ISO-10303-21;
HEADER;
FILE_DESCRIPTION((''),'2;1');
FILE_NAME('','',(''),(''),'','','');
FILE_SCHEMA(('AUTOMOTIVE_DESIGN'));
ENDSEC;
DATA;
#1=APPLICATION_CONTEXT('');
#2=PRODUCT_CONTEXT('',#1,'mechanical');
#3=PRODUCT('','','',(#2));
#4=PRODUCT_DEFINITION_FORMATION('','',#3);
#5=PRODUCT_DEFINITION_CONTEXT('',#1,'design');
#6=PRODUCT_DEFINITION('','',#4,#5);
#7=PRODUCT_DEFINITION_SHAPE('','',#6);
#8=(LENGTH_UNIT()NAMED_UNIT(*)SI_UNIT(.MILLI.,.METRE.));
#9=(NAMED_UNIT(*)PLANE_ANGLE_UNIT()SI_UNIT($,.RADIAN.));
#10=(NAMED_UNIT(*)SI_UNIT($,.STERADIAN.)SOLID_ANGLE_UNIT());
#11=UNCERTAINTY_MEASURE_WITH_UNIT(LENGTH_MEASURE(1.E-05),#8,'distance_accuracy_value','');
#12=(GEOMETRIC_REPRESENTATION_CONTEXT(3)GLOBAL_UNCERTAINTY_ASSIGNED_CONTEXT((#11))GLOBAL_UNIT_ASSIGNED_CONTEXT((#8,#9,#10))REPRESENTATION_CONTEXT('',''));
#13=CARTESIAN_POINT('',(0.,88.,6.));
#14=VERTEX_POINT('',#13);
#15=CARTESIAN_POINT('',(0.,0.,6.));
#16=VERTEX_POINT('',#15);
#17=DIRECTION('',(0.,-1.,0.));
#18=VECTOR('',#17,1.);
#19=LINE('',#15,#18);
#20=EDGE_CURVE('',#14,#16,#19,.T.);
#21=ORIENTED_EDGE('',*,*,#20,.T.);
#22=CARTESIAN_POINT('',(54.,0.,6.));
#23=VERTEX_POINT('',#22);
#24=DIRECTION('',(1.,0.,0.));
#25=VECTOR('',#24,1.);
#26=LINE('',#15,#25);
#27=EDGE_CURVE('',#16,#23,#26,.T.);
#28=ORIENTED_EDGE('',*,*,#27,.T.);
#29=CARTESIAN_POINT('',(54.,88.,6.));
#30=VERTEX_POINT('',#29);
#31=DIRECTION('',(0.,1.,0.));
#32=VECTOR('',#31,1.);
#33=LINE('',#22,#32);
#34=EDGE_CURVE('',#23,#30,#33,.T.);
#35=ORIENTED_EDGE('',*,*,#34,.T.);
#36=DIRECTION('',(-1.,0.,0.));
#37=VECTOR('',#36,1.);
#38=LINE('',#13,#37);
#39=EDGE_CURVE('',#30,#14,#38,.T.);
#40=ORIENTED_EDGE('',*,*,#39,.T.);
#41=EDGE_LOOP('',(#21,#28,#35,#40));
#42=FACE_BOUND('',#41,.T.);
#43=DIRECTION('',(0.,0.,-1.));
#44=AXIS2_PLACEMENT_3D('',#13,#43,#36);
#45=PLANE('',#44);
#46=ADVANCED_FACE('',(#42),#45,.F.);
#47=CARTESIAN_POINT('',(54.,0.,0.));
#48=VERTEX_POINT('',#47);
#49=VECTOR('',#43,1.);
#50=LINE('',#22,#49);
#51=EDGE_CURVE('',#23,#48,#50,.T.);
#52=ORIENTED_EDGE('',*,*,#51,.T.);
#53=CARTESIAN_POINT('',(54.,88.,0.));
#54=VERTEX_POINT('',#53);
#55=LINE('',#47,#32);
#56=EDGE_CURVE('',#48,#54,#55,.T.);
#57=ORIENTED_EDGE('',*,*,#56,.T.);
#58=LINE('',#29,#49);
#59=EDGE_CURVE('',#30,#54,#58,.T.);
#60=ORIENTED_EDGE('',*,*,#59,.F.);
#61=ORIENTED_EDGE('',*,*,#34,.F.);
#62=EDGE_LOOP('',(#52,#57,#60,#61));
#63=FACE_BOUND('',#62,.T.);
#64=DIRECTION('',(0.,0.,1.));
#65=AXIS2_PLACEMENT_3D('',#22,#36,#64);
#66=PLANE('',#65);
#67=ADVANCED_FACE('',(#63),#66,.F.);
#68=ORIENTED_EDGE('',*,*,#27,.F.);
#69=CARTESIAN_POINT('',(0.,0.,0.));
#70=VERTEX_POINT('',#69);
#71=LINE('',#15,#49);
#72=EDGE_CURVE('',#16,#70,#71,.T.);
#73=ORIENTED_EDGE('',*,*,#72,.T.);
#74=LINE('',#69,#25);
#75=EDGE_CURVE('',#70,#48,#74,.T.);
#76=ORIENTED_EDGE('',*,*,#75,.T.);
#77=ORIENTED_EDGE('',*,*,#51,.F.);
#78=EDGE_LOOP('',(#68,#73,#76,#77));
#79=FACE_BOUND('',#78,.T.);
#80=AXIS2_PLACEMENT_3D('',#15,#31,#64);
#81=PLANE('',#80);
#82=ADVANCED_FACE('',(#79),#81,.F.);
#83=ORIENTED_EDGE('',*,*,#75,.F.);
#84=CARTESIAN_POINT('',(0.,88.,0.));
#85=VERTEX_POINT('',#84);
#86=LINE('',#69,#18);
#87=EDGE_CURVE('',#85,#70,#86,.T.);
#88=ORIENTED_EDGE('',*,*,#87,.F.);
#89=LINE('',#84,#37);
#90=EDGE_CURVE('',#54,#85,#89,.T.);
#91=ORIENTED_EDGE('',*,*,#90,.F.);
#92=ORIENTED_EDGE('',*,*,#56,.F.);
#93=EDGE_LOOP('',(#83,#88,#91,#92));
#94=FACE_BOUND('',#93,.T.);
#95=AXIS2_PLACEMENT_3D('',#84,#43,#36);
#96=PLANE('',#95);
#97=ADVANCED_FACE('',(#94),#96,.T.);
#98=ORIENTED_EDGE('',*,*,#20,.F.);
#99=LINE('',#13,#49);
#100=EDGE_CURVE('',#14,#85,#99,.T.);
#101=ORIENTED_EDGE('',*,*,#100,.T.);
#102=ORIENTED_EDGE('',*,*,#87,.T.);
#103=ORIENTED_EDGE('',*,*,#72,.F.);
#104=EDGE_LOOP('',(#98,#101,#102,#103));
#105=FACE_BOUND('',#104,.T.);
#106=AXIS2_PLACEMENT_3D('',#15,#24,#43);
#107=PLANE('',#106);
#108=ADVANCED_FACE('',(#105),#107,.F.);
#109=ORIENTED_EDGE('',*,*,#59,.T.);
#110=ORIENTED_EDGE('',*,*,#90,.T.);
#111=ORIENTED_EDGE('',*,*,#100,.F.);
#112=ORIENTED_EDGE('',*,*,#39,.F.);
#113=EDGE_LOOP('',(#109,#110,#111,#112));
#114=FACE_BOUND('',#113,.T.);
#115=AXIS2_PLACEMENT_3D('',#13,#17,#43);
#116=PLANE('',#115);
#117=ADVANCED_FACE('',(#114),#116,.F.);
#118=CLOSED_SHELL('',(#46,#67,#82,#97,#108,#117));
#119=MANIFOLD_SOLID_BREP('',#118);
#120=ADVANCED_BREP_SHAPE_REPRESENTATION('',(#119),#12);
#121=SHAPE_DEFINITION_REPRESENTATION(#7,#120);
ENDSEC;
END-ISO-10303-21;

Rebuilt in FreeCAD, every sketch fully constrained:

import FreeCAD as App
import Part
import Sketcher
Q = App.Units.Quantity


def add_polygon(sketch, points):
    """Adds a closed chain of lines whose ends are joined by coincident constraints."""
    first, n = sketch.GeometryCount, len(points)
    for a, b in zip(points, points[1:] + points[:1]):
        sketch.addGeometry(Part.LineSegment(App.Vector(*a, 0), App.Vector(*b, 0)), False)
    for i in range(n):
        sketch.addConstraint(Sketcher.Constraint("Coincident", first + i, 2, first + (i + 1) % n, 1))

doc = App.newDocument("Part")
body = doc.addObject("PartDesign::Body", "Body")

# Sketch on XY plane
sketch1 = body.newObject("Sketcher::SketchObject", "Sketch")
sketch1.AttachmentSupport = (doc.getObject("XY_Plane"), [""])
sketch1.MapMode = "FlatFace"
add_polygon(sketch1, [(0, 88), (0, 0), (54, 0), (54, 88)])  # lines 0-3
sketch1.addConstraint(Sketcher.Constraint("Vertical", 0))
sketch1.addConstraint(Sketcher.Constraint("Horizontal", 1))
sketch1.addConstraint(Sketcher.Constraint("Vertical", 2))
sketch1.addConstraint(Sketcher.Constraint("Horizontal", 3))
sketch1.addConstraint(Sketcher.Constraint("Coincident", 0, 2, -1, 1))
sketch1.addConstraint(Sketcher.Constraint("DistanceX", 1, 1, 1, 2, Q("54 mm")))
sketch1.addConstraint(Sketcher.Constraint("DistanceY", 0, 2, 0, 1, Q("88 mm")))
pad1 = body.newObject("PartDesign::Pad", "Pad")
pad1.Profile = sketch1
pad1.Length = 6

doc.recompute()
